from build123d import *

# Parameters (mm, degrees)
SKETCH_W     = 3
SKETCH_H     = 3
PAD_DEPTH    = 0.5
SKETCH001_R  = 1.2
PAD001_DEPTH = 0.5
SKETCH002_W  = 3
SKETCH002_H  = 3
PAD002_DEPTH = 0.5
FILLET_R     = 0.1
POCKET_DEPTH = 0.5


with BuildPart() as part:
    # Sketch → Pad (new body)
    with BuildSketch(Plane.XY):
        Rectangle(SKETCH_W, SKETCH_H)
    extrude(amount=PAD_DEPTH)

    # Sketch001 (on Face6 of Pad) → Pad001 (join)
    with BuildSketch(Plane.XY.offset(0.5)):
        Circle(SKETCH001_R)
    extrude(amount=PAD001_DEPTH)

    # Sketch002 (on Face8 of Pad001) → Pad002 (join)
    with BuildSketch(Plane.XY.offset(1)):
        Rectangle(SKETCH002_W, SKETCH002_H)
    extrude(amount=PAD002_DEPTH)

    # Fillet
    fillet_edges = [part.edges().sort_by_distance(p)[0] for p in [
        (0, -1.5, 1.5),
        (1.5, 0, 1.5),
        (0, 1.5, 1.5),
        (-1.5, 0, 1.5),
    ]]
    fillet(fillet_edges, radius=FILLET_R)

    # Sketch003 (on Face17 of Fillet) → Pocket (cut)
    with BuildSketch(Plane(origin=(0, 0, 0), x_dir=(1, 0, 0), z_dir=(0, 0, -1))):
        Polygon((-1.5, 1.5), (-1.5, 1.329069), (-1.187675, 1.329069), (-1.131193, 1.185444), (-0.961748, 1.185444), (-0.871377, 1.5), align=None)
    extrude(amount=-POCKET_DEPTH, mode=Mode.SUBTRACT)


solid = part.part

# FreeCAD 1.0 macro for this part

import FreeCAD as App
import Part
import Sketcher


def edges_at(feature, points):
    """Names of the edges that pass closest to the given points."""
    edges = feature.Shape.Edges
    near = lambda p: min(range(len(edges)), key=lambda i: edges[i].distToShape(Part.Vertex(*p))[0])
    return sorted({f"Edge{near(p) + 1}" for p in points})


def add_polygon(sketch, points):
    """Adds a closed chain of lines whose ends are joined by coincident constraints."""
    first, n = sketch.GeometryCount, len(points)
    for a, b in zip(points, points[1:] + points[:1]):
        sketch.addGeometry(Part.LineSegment(App.Vector(*a, 0), App.Vector(*b, 0)), False)
    for i in range(n):
        sketch.addConstraint(Sketcher.Constraint("Coincident", first + i, 2, first + (i + 1) % n, 1))

doc = App.newDocument("Part")
body = doc.addObject("PartDesign::Body", "Body")

sketch1 = body.newObject("Sketcher::SketchObject", "Sketch")
sketch1.AttachmentSupport = (doc.getObject("XY_Plane"), [""])
sketch1.MapMode = "FlatFace"
add_polygon(sketch1, [(-1.5, 1.5), (-1.5, -1.5), (1.5, -1.5), (1.5, 1.5)])
sketch1.addConstraint([
    Sketcher.Constraint("Vertical", 0),
    Sketcher.Constraint("Horizontal", 1),
    Sketcher.Constraint("Vertical", 2),
    Sketcher.Constraint("Horizontal", 3),
    Sketcher.Constraint("Symmetric", 0, 2, 2, 2, -1, 1),
    Sketcher.Constraint("Equal", 3, 0),
    Sketcher.Constraint("DistanceX", 1, 1, 1, 2, 3.0),
])
pad1 = body.newObject("PartDesign::Pad", "Pad")
pad1.Profile = sketch1
pad1.Length = 0.5

sketch2 = body.newObject("Sketcher::SketchObject", "Sketch001")
sketch2.AttachmentSupport = (doc.getObject("XY_Plane"), [""])
sketch2.MapMode = "FlatFace"
sketch2.AttachmentOffset = App.Placement(App.Vector(0, 0, 0.5), App.Rotation())
sketch2.addGeometry(Part.Circle(App.Vector(0, 0, 0), App.Vector(0, 0, 1), 1.2), False)
sketch2.addConstraint([
    Sketcher.Constraint("Coincident", 0, 3, -1, 1),
    Sketcher.Constraint("Diameter", 0, 2.4),
])
pad2 = body.newObject("PartDesign::Pad", "Pad001")
pad2.Profile = sketch2
pad2.Length = 0.5

sketch3 = body.newObject("Sketcher::SketchObject", "Sketch002")
sketch3.AttachmentSupport = (doc.getObject("XY_Plane"), [""])
sketch3.MapMode = "FlatFace"
sketch3.AttachmentOffset = App.Placement(App.Vector(0, 0, 1), App.Rotation())
add_polygon(sketch3, [(-1.5, 1.5), (-1.5, -1.5), (1.5, -1.5), (1.5, 1.5)])
sketch3.addConstraint([
    Sketcher.Constraint("Vertical", 0),
    Sketcher.Constraint("Horizontal", 1),
    Sketcher.Constraint("Vertical", 2),
    Sketcher.Constraint("Horizontal", 3),
    Sketcher.Constraint("Symmetric", 0, 2, 2, 2, -1, 1),
    Sketcher.Constraint("Equal", 3, 0),
    Sketcher.Constraint("DistanceX", 1, 1, 1, 2, 3.0),
])
pad3 = body.newObject("PartDesign::Pad", "Pad002")
pad3.Profile = sketch3
pad3.Length = 0.5
doc.recompute()

fillet = body.newObject("PartDesign::Fillet", "Fillet")
fillet.Base = (pad3, edges_at(pad3, [
    (0, -1.5, 1.5),
    (1.5, 0, 1.5),
    (0, 1.5, 1.5),
    (-1.5, 0, 1.5),
]))
fillet.Radius = 0.1

sketch4 = body.newObject("Sketcher::SketchObject", "Sketch003")
sketch4.AttachmentSupport = (doc.getObject("XY_Plane"), [""])
sketch4.MapMode = "FlatFace"
add_polygon(sketch4, [(-1.5, -1.5), (-1.5, -1.33), (-1.19, -1.33), (-1.13, -1.19), (-0.96, -1.19), (-0.87, -1.5)])
sketch4.addConstraint([
    Sketcher.Constraint("Vertical", 0),
    Sketcher.Constraint("Horizontal", 1),
    Sketcher.Constraint("Horizontal", 3),
    Sketcher.Constraint("Horizontal", 5),
    Sketcher.Constraint("DistanceX", 0, 2, -1, 1, 1.5),
    Sketcher.Constraint("DistanceY", 4, 2, -1, 1, 1.5),
    Sketcher.Constraint("DistanceY", 0, 1, 0, 2, 0.170931),
    Sketcher.Constraint("DistanceX", 1, 2, 4, 2, 0.316298),
    Sketcher.Constraint("Distance", 2, 0.154332),
    Sketcher.Constraint("Distance", 4, 0.32728),
    Sketcher.Constraint("DistanceX", 1, 1, 1, 2, 0.312325),
    Sketcher.Constraint("DistanceX", 3, 1, 3, 2, 0.169445),
])
pocket1 = body.newObject("PartDesign::Pocket", "Pocket")
pocket1.Profile = sketch4
pocket1.Length = 0.5
pocket1.Reversed = True

doc.recompute()
